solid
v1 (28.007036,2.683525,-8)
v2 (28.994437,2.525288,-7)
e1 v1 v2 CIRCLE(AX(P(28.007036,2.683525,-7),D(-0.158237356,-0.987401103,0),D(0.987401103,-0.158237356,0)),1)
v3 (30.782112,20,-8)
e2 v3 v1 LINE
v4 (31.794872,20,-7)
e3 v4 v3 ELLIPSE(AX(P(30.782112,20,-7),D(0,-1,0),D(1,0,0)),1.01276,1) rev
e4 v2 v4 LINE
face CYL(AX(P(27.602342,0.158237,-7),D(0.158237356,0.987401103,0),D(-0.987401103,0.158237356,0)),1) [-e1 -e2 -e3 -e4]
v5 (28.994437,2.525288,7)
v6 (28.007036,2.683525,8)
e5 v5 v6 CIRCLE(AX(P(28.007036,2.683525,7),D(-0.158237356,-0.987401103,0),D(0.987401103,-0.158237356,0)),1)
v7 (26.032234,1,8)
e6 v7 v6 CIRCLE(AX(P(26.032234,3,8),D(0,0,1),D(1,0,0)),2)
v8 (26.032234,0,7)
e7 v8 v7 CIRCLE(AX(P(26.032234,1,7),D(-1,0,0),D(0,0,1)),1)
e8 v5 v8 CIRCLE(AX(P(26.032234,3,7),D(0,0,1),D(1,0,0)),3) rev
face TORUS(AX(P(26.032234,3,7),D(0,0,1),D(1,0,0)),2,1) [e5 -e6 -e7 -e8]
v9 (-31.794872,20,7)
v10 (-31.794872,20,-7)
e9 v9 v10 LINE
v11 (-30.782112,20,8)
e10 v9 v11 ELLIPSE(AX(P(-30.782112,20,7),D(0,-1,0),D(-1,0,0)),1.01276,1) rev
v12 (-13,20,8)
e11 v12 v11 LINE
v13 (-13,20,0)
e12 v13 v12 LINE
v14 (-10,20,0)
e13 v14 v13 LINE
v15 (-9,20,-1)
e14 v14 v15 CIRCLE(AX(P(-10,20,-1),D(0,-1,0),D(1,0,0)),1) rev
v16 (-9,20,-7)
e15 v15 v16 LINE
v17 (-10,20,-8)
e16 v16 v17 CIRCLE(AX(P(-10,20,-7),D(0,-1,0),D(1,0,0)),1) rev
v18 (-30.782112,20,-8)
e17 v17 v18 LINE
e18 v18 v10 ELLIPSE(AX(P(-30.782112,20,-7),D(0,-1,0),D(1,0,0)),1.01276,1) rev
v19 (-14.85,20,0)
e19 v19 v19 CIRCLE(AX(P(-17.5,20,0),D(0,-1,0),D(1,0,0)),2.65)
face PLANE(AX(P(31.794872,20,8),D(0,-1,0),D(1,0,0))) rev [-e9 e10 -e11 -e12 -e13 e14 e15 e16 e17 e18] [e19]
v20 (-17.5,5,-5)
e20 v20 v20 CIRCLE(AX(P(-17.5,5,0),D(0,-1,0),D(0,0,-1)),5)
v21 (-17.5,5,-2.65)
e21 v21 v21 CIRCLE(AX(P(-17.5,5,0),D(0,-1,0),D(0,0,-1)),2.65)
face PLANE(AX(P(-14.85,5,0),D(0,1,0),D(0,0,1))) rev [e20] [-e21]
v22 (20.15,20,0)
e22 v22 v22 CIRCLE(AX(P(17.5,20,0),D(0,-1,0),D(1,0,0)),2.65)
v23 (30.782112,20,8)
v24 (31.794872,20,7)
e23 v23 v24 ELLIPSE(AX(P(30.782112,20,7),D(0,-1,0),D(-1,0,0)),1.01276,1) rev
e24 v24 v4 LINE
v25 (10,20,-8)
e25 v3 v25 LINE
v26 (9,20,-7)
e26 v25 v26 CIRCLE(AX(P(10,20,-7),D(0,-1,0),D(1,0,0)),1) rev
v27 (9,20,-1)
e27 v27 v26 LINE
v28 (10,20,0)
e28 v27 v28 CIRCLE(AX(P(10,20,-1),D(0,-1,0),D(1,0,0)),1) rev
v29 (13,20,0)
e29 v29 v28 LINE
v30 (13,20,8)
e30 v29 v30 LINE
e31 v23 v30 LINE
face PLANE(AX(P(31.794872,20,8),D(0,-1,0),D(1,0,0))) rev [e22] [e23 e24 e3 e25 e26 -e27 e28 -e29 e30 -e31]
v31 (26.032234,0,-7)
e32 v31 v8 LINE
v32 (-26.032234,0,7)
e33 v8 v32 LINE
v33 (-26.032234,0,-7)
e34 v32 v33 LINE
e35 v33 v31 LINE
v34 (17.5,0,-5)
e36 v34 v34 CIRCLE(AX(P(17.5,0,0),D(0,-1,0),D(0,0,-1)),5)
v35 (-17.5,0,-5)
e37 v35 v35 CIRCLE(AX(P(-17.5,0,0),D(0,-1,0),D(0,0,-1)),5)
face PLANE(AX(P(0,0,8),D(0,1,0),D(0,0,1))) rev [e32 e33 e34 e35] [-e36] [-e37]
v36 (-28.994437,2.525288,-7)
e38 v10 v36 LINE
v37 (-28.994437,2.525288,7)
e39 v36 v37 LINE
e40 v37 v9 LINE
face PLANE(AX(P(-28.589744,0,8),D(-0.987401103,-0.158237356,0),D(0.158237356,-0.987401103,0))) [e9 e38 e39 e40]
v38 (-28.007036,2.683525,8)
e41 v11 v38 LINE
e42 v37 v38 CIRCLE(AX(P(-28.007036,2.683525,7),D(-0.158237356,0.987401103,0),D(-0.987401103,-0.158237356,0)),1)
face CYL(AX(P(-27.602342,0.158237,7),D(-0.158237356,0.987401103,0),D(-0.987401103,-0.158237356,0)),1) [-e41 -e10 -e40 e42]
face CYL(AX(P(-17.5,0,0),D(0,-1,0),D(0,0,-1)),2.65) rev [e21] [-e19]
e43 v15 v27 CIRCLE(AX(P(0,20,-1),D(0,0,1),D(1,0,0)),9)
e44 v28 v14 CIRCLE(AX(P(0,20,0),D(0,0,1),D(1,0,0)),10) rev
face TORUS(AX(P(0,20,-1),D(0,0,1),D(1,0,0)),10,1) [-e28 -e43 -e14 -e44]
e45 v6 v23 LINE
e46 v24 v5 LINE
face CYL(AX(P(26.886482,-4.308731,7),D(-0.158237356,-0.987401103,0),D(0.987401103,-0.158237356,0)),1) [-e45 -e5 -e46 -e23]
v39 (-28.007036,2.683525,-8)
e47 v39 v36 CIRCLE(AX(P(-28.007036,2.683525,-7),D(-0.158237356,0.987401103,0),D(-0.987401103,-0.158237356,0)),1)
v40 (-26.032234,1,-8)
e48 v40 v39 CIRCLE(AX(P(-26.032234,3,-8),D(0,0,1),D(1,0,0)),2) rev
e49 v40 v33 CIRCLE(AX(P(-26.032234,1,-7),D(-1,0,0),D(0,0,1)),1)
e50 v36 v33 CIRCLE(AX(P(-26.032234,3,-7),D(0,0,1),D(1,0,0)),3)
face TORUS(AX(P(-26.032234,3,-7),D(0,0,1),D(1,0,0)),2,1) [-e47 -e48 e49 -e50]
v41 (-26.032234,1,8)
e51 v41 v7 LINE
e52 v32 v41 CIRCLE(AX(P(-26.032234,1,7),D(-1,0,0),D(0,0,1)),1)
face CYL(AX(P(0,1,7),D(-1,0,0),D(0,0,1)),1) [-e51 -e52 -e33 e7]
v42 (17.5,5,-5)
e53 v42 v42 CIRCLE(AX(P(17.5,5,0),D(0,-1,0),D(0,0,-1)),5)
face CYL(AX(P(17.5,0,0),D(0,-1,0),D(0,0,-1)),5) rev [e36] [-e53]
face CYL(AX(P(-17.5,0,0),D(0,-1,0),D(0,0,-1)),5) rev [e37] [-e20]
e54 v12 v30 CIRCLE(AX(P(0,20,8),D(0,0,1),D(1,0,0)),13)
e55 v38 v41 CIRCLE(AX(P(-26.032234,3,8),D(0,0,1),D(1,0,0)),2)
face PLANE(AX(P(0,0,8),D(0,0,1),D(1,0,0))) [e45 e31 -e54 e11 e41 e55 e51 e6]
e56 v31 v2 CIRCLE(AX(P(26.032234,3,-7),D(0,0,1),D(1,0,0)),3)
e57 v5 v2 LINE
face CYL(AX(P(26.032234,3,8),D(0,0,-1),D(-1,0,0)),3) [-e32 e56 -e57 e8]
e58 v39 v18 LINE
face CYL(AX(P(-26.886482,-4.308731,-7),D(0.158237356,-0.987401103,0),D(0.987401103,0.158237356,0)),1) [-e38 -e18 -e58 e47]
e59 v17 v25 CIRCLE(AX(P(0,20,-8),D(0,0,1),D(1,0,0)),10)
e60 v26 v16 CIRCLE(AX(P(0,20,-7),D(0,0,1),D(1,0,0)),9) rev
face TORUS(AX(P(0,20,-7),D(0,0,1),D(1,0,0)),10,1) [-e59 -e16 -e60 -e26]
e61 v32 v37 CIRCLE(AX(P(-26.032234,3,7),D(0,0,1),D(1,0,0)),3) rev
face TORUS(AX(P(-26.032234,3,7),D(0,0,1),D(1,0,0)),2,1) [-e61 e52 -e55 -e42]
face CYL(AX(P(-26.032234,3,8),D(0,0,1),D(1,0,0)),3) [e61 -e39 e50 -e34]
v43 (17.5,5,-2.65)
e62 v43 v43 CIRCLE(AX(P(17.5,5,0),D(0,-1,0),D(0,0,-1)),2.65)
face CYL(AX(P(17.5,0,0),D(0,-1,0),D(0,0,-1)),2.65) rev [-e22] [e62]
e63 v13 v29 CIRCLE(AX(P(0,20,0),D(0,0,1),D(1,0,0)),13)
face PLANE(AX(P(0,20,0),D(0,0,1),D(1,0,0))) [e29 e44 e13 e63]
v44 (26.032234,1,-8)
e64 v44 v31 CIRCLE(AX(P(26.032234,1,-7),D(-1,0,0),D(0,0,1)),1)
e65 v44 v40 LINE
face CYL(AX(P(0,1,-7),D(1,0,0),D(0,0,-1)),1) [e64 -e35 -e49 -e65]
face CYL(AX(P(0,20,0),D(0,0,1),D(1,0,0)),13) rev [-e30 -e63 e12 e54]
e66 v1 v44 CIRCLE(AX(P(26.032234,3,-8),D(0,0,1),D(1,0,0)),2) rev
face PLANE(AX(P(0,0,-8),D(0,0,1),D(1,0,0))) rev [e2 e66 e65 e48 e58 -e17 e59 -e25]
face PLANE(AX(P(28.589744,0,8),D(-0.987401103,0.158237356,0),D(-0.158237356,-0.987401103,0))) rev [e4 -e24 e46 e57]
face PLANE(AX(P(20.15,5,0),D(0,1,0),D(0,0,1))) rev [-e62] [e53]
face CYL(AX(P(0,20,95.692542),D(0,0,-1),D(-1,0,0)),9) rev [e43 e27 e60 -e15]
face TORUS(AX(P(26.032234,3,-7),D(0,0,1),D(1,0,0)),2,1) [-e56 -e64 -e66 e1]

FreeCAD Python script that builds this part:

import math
import FreeCAD as App
import Part
import Sketcher
from FreeCAD import Vector
Q = App.Units.Quantity


def edges_at(feature, points):
    """Names of the edges that pass closest to the given points."""
    edges = feature.Shape.Edges
    near = lambda p: min(range(len(edges)), key=lambda i: edges[i].distToShape(Part.Vertex(*p))[0])
    return sorted({f"Edge{near(p) + 1}" for p in points})


def add_polygon(sketch, points):
    """Adds a closed chain of lines whose ends are joined by coincident constraints."""
    first, n = sketch.GeometryCount, len(points)
    for a, b in zip(points, points[1:] + points[:1]):
        sketch.addGeometry(Part.LineSegment(App.Vector(*a, 0), App.Vector(*b, 0)), False)
    for i in range(n):
        sketch.addConstraint(Sketcher.Constraint("Coincident", first + i, 2, first + (i + 1) % n, 1))

doc = App.newDocument("Part")
params = doc.addObject("Spreadsheet::Sheet", "Params")
for row, (alias, value) in enumerate([
    ("sketch1_height", "20 mm"),
    ("pad1_length", "16 mm"),
    ("sketch2_radius", "13 mm"),
    ("pocket1_length", "8 mm"),
    ("sketch3_radius", "9 mm"),
    ("sketch4_diameter", "5.3 mm"),
    ("hole_diameter", "5.3 mm"),
    ("hole_cbore_diameter", "10 mm"),
    ("hole_cbore_depth", "5 mm"),
    ("fillet_radius", "3 mm"),
    ("fillet2_radius", "1 mm"),
], start=1):
    params.set(f"A{row}", alias)
    params.set(f"B{row}", "=" + value)
    params.setAlias(f"B{row}", alias)

body = doc.addObject("PartDesign::Body", "Body")

# Sketch on XY plane
sketch1 = doc.addObject("Sketcher::SketchObject", "Sketch")
body.addObject(sketch1)
sketch1.AttachmentSupport = (doc.XY_Plane, [""])
sketch1.MapMode = "FlatFace"
add_polygon(sketch1, [(0, 0), (28.589744, 0), (31.794872, 20), (0, 20)])  # lines 0-3
sketch1.addConstraint(Sketcher.Constraint("Horizontal", 0))
sketch1.addConstraint(Sketcher.Constraint("Horizontal", 2))
sketch1.addConstraint(Sketcher.Constraint("Vertical", 3))
sketch1.addConstraint(Sketcher.Constraint("Coincident", 3, 2, -1, 1))
sketch1.addConstraint(Sketcher.Constraint("DistanceY", 3, 2, 3, 1, Q("20 mm")))
sketch1.addConstraint(Sketcher.Constraint("DistanceX", 2, 2, 2, 1, Q("31.794872 mm")))
sketch1.addConstraint(Sketcher.Constraint("DistanceX", 0, 1, 0, 2, Q("28.589744 mm")))
sketch1.setExpression("Constraints[8]", "Params.sketch1_height")
pad1 = doc.addObject("PartDesign::Pad", "Pad")
body.addObject(pad1)
pad1.Profile = sketch1
pad1.setExpression("Length", "Params.pad1_length")
pad1.Midplane = True
doc.recompute()

mirrored = doc.addObject("PartDesign::Mirrored", "Mirrored")
body.addObject(mirrored)
mirrored.Originals = [pad1]
mirrored.MirrorPlane = (doc.YZ_Plane, [""])
body.Tip = mirrored

# Sketch on XY plane
sketch2 = doc.addObject("Sketcher::SketchObject", "Sketch001")
body.addObject(sketch2)
sketch2.AttachmentSupport = (doc.XY_Plane, [""])
sketch2.MapMode = "FlatFace"
sketch2.AttachmentOffset = App.Placement(Vector(0, 0, 8), App.Rotation())
sketch2.addGeometry(Part.LineSegment(Vector(13, 20, 0), Vector(-13, 20, 0)), False)
sketch2.addGeometry(Part.ArcOfCircle(Part.Circle(Vector(0, 20, 0), Vector(0, 0, 1), 13), math.radians(180), math.radians(360)), False)
sketch2.addConstraint(Sketcher.Constraint("Coincident", 0, 1, 1, 2))
sketch2.addConstraint(Sketcher.Constraint("Coincident", 1, 1, 0, 2))
sketch2.addConstraint(Sketcher.Constraint("Horizontal", 0))
sketch2.addConstraint(Sketcher.Constraint("PointOnObject", 1, 3, -2))
sketch2.addConstraint(Sketcher.Constraint("Horizontal", 1, 3, 0, 1))
sketch2.addConstraint(Sketcher.Constraint("Radius", 1, Q("13 mm")))
sketch2.addConstraint(Sketcher.Constraint("DistanceY", -1, 1, 1, 3, Q("20 mm")))
sketch2.setExpression("Constraints[5]", "Params.sketch2_radius")
pocket1 = doc.addObject("PartDesign::Pocket", "Pocket")
body.addObject(pocket1)
pocket1.Profile = sketch2
pocket1.setExpression("Length", "Params.pocket1_length")

# Sketch on XY plane
sketch3 = doc.addObject("Sketcher::SketchObject", "Sketch002")
body.addObject(sketch3)
sketch3.AttachmentSupport = (doc.XY_Plane, [""])
sketch3.MapMode = "FlatFace"
sketch3.addGeometry(Part.ArcOfCircle(Part.Circle(Vector(0, 20, 0), Vector(0, 0, 1), 9), math.radians(180), math.radians(360)), False)
sketch3.addGeometry(Part.LineSegment(Vector(9, 20, 0), Vector(-9, 20, 0)), False)
sketch3.addConstraint(Sketcher.Constraint("Coincident", 0, 1, 1, 2))
sketch3.addConstraint(Sketcher.Constraint("Coincident", 1, 1, 0, 2))
sketch3.addConstraint(Sketcher.Constraint("Horizontal", 1))
sketch3.addConstraint(Sketcher.Constraint("PointOnObject", 0, 3, -2))
sketch3.addConstraint(Sketcher.Constraint("Radius", 0, Q("9 mm")))
sketch3.addConstraint(Sketcher.Constraint("DistanceY", -1, 1, 0, 3, Q("20 mm")))
sketch3.addConstraint(Sketcher.Constraint("DistanceY", -1, 1, 0, 1, Q("20 mm")))
sketch3.setExpression("Constraints[4]", "Params.sketch3_radius")
pocket2 = doc.addObject("PartDesign::Pocket", "Pocket001")
body.addObject(pocket2)
pocket2.Profile = sketch3
pocket2.Type = "ThroughAll"
pocket2.Midplane = True

# Sketch on XZ plane
sketch4 = doc.addObject("Sketcher::SketchObject", "Sketch003")
body.addObject(sketch4)
sketch4.AttachmentSupport = (doc.XZ_Plane, [""])
sketch4.MapMode = "FlatFace"
sketch4.addGeometry(Part.Circle(Vector(17.5, 0, 0), Vector(0, 0, 1), 2.65), False)
sketch4.addGeometry(Part.Circle(Vector(-17.5, 0, 0), Vector(0, 0, 1), 2.65), False)
sketch4.addConstraint(Sketcher.Constraint("Equal", 0, 1))
sketch4.addConstraint(Sketcher.Constraint("Symmetric", 0, 3, 1, 3, -1, 1))
sketch4.addConstraint(Sketcher.Constraint("PointOnObject", 0, 3, -1))
sketch4.addConstraint(Sketcher.Constraint("Diameter", 0, Q("5.3 mm")))
sketch4.addConstraint(Sketcher.Constraint("DistanceX", 1, 3, 0, 3, Q("35 mm")))
sketch4.setExpression("Constraints[3]", "Params.sketch4_diameter")
doc.recompute()
hole = doc.addObject("PartDesign::Hole", "Hole")
body.addObject(hole)
hole.Profile = sketch4
hole.ThreadType = "None"
hole.setExpression("Diameter", "Params.hole_diameter")
hole.DepthType = "ThroughAll"
hole.HoleCutType = "Counterbore"
hole.setExpression("HoleCutDiameter", "Params.hole_cbore_diameter")
hole.setExpression("HoleCutDepth", "Params.hole_cbore_depth")
doc.recompute()

fillet = doc.addObject("PartDesign::Fillet", "Fillet")
body.addObject(fillet)
fillet.Base = (hole, edges_at(hole, [(-28.59, 0, 0), (28.59, 0, 0)]))
fillet.setExpression("Radius", "Params.fillet_radius")
doc.recompute()

fillet2 = doc.addObject("PartDesign::Fillet", "Fillet001")
body.addObject(fillet2)
fillet2.Base = (fillet, edges_at(fillet, [
    (0, 11, 0),
    (0, 11, -8),
    (0, 0, -8),
    (0, 0, 8),
    (30.395, 11.263, -8),
    (-30.395, 11.263, -8),
    (27.978, 0.717, -8),
    (-27.978, 0.717, -8),
    (-30.395, 11.263, 8),
    (30.395, 11.263, 8),
    (27.978, 0.717, 8),
    (-27.978, 0.717, 8),
]))
fillet2.setExpression("Radius", "Params.fillet2_radius")

doc.recompute()
